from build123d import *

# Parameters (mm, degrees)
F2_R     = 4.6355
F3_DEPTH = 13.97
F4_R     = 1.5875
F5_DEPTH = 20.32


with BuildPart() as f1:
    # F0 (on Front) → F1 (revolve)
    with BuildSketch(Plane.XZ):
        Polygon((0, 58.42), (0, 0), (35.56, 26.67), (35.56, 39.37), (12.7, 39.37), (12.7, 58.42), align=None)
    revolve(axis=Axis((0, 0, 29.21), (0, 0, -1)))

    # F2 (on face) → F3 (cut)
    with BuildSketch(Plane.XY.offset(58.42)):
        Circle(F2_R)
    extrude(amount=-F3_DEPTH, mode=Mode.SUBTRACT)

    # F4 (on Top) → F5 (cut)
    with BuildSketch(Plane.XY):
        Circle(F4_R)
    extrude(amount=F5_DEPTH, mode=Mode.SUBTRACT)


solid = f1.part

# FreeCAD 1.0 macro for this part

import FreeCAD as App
import Part
import Sketcher
from FreeCAD import Vector
Q = App.Units.Quantity


def add_polygon(sketch, points):
    """Adds a closed chain of lines whose ends are joined by coincident constraints."""
    first, n = sketch.GeometryCount, len(points)
    for a, b in zip(points, points[1:] + points[:1]):
        sketch.addGeometry(Part.LineSegment(App.Vector(*a, 0), App.Vector(*b, 0)), False)
    for i in range(n):
        sketch.addConstraint(Sketcher.Constraint("Coincident", first + i, 2, first + (i + 1) % n, 1))

doc = App.newDocument("Part")
body = doc.addObject("PartDesign::Body", "Body")

# Sketch on XZ plane
sketch1 = doc.addObject("Sketcher::SketchObject", "Sketch")
body.addObject(sketch1)
sketch1.AttachmentSupport = (doc.XZ_Plane, [""])
sketch1.MapMode = "FlatFace"
add_polygon(sketch1, [(0, 58), (0, 0), (36, 27), (36, 39), (13, 39), (13, 58)])  # lines 0-5
sketch1.addConstraint([
    Sketcher.Constraint("Vertical", 0),
    Sketcher.Constraint("Vertical", 2),
    Sketcher.Constraint("Horizontal", 3),
    Sketcher.Constraint("Vertical", 4),
    Sketcher.Constraint("Horizontal", 5),
    Sketcher.Constraint("Coincident", 0, 2, -1, 1),
    Sketcher.Constraint("Equal", 5, 2),
    Sketcher.Constraint("DistanceX", 3, 2, 3, 1, Q("0.9 in")),
    Sketcher.Constraint("DistanceX", 5, 2, 5, 1, Q("0.5 in")),
    Sketcher.Constraint("DistanceY", 0, 2, 0, 1, Q("2.3 in")),
    Sketcher.Constraint("DistanceY", 4, 1, 4, 2, Q("0.75 in")),
])
revolution = doc.addObject("PartDesign::Revolution", "Revolution")
body.addObject(revolution)
revolution.Profile = sketch1
revolution.ReferenceAxis = (sketch1, ["V_Axis"])
revolution.Angle = 360

# Sketch on XY plane
sketch2 = doc.addObject("Sketcher::SketchObject", "Sketch001")
body.addObject(sketch2)
sketch2.AttachmentSupport = (doc.XY_Plane, [""])
sketch2.MapMode = "FlatFace"
sketch2.AttachmentOffset = App.Placement(Vector(0, 0, 2.3 * 25.4), App.Rotation())
sketch2.addGeometry(Part.Circle(Vector(0, 0, 0), Vector(0, 0, 1), 4.6), False)
sketch2.addConstraint([
    Sketcher.Constraint("Coincident", 0, 3, -1, 1),
    Sketcher.Constraint("Diameter", 0, Q("0.365 in")),
])
pocket1 = doc.addObject("PartDesign::Pocket", "Pocket")
body.addObject(pocket1)
pocket1.Profile = sketch2
pocket1.Length = Q("0.55 in")

# Sketch on XY plane
sketch3 = doc.addObject("Sketcher::SketchObject", "Sketch002")
body.addObject(sketch3)
sketch3.AttachmentSupport = (doc.XY_Plane, [""])
sketch3.MapMode = "FlatFace"
sketch3.addGeometry(Part.Circle(Vector(0, 0, 0), Vector(0, 0, 1), 1.6), False)
sketch3.addConstraint([
    Sketcher.Constraint("Coincident", 0, 3, -1, 1),
    Sketcher.Constraint("Diameter", 0, Q("0.125 in")),
])
pocket2 = doc.addObject("PartDesign::Pocket", "Pocket001")
body.addObject(pocket2)
pocket2.Profile = sketch3
pocket2.Length = Q("0.8 in")
pocket2.Reversed = True

doc.recompute()
